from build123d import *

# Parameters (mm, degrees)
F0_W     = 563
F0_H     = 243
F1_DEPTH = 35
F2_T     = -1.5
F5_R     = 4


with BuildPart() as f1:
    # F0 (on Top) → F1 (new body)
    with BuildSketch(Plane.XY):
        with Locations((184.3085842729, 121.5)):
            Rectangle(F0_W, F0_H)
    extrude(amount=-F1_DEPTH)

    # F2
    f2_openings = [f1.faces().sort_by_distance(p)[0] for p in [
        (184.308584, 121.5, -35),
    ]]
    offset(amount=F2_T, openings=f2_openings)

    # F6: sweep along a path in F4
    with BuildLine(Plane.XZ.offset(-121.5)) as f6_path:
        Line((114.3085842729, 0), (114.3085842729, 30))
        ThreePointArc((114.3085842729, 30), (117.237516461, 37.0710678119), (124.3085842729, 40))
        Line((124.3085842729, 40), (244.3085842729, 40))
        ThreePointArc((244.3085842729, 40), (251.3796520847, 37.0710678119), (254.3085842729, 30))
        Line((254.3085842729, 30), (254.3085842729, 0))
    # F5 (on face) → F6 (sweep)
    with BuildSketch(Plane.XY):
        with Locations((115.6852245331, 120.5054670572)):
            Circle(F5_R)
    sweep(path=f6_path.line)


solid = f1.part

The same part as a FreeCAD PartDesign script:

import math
import FreeCAD as App
import Part
import Sketcher
Q = App.Units.Quantity


def faces_at(feature, points):
    """Names of the faces that lie closest to the given points."""
    faces = feature.Shape.Faces
    near = lambda p: min(range(len(faces)), key=lambda i: faces[i].distToShape(Part.Vertex(*p))[0])
    return sorted({f"Face{near(p) + 1}" for p in points})

doc = App.newDocument("Part")
body = doc.addObject("PartDesign::Body", "Body")

# Sketch on XY plane
sketch1 = body.newObject("Sketcher::SketchObject", "Sketch")
sketch1.AttachmentSupport = (doc.getObject("XY_Plane"), [""])
sketch1.MapMode = "FlatFace"
sketch1.addGeometry([
    Part.LineSegment(App.Vector(-97, 243, 0), App.Vector(-97, 0, 0)),
    Part.LineSegment(App.Vector(-97, 0, 0), App.Vector(466, 0, 0)),
    Part.LineSegment(App.Vector(466, 0, 0), App.Vector(466, 243, 0)),
    Part.LineSegment(App.Vector(466, 243, 0), App.Vector(-97, 243, 0)),
], False)
sketch1.addConstraint([
    Sketcher.Constraint("Coincident", 0, 2, 1, 1),
    Sketcher.Constraint("Coincident", 1, 2, 2, 1),
    Sketcher.Constraint("Coincident", 2, 2, 3, 1),
    Sketcher.Constraint("Coincident", 3, 2, 0, 1),
    Sketcher.Constraint("Vertical", 0),
    Sketcher.Constraint("Horizontal", 1),
    Sketcher.Constraint("Vertical", 2),
    Sketcher.Constraint("Horizontal", 3),
    Sketcher.Constraint("PointOnObject", 0, 2, -1),
    Sketcher.Constraint("DistanceX", 1, 1, 1, 2, Q("563 mm")),
    Sketcher.Constraint("DistanceY", 0, 2, 0, 1, Q("243 mm")),
    Sketcher.Constraint("DistanceX", 0, 2, -1, 1, Q("97.191416 mm")),
])
pad1 = body.newObject("PartDesign::Pad", "Pad")
pad1.Profile = sketch1
pad1.Length = 35
pad1.Reversed = True
doc.recompute()

thickness = body.newObject("PartDesign::Thickness", "Thickness")
thickness.Base = (pad1, faces_at(pad1, [(184.309, 121.5, -35)]))
thickness.Value = 1.5
thickness.Reversed = True
thickness.Join = "Arc"

# Sketch on XY plane
sketch2 = body.newObject("Sketcher::SketchObject", "Sketch001")
sketch2.AttachmentSupport = (doc.getObject("XY_Plane"), [""])
sketch2.MapMode = "FlatFace"
sketch2.addGeometry(Part.Circle(App.Vector(115.7, 120.5, 0), App.Vector(0, 0, 1), 4), False)
sketch2.addConstraint([
    Sketcher.Constraint("Diameter", 0, Q("8 mm")),
    Sketcher.Constraint("DistanceX", -1, 1, 0, 3, Q("115.685225 mm")),
    Sketcher.Constraint("DistanceY", -1, 1, 0, 3, Q("120.505467 mm")),
])

# Sketch on XZ plane
sketch3 = body.newObject("Sketcher::SketchObject", "Sketch002")
sketch3.AttachmentSupport = (doc.getObject("XZ_Plane"), [""])
sketch3.MapMode = "FlatFace"
sketch3.AttachmentOffset = App.Placement(App.Vector(0, 0, -121.5), App.Rotation())
sketch3.addGeometry([
    Part.LineSegment(App.Vector(114, 0, 0), App.Vector(114, 30, 0)),  # 0
    Part.ArcOfCircle(Part.Circle(App.Vector(124, 30, 0), App.Vector(0, 0, 1), 10), math.radians(90), math.radians(180)),  # 1
    Part.LineSegment(App.Vector(124, 40, 0), App.Vector(244, 40, 0)),  # 2
    Part.ArcOfCircle(Part.Circle(App.Vector(244, 30, 0), App.Vector(0, 0, 1), 10), math.radians(0), math.radians(90)),  # 3
    Part.LineSegment(App.Vector(254, 30, 0), App.Vector(254, 0, 0)),  # 4
], False)
sketch3.addConstraint([
    Sketcher.Constraint("Tangent", 0, 2, 1, 2),
    Sketcher.Constraint("Tangent", 1, 1, 2, 1),
    Sketcher.Constraint("Tangent", 2, 2, 3, 2),
    Sketcher.Constraint("Tangent", 3, 1, 4, 1),
    Sketcher.Constraint("Vertical", 0),
    Sketcher.Constraint("Horizontal", 2),
    Sketcher.Constraint("Vertical", 4),
    Sketcher.Constraint("Equal", 1, 3),
    Sketcher.Constraint("PointOnObject", 0, 1, -1),
    Sketcher.Constraint("PointOnObject", 4, 2, -1),
    Sketcher.Constraint("Radius", 1, Q("10 mm")),
    Sketcher.Constraint("DistanceX", 2, 1, 2, 2, Q("120 mm")),
    Sketcher.Constraint("DistanceY", 0, 1, 0, 2, Q("30 mm")),
    Sketcher.Constraint("DistanceX", -1, 1, 1, 3, Q("124.308584 mm")),
])
doc.recompute()

additivepipe = body.newObject("PartDesign::AdditivePipe", "AdditivePipe")
additivepipe.Profile = sketch2
additivepipe.Spine = (sketch3, ["Edge1", "Edge2", "Edge3", "Edge4", "Edge5"])

doc.recompute()
